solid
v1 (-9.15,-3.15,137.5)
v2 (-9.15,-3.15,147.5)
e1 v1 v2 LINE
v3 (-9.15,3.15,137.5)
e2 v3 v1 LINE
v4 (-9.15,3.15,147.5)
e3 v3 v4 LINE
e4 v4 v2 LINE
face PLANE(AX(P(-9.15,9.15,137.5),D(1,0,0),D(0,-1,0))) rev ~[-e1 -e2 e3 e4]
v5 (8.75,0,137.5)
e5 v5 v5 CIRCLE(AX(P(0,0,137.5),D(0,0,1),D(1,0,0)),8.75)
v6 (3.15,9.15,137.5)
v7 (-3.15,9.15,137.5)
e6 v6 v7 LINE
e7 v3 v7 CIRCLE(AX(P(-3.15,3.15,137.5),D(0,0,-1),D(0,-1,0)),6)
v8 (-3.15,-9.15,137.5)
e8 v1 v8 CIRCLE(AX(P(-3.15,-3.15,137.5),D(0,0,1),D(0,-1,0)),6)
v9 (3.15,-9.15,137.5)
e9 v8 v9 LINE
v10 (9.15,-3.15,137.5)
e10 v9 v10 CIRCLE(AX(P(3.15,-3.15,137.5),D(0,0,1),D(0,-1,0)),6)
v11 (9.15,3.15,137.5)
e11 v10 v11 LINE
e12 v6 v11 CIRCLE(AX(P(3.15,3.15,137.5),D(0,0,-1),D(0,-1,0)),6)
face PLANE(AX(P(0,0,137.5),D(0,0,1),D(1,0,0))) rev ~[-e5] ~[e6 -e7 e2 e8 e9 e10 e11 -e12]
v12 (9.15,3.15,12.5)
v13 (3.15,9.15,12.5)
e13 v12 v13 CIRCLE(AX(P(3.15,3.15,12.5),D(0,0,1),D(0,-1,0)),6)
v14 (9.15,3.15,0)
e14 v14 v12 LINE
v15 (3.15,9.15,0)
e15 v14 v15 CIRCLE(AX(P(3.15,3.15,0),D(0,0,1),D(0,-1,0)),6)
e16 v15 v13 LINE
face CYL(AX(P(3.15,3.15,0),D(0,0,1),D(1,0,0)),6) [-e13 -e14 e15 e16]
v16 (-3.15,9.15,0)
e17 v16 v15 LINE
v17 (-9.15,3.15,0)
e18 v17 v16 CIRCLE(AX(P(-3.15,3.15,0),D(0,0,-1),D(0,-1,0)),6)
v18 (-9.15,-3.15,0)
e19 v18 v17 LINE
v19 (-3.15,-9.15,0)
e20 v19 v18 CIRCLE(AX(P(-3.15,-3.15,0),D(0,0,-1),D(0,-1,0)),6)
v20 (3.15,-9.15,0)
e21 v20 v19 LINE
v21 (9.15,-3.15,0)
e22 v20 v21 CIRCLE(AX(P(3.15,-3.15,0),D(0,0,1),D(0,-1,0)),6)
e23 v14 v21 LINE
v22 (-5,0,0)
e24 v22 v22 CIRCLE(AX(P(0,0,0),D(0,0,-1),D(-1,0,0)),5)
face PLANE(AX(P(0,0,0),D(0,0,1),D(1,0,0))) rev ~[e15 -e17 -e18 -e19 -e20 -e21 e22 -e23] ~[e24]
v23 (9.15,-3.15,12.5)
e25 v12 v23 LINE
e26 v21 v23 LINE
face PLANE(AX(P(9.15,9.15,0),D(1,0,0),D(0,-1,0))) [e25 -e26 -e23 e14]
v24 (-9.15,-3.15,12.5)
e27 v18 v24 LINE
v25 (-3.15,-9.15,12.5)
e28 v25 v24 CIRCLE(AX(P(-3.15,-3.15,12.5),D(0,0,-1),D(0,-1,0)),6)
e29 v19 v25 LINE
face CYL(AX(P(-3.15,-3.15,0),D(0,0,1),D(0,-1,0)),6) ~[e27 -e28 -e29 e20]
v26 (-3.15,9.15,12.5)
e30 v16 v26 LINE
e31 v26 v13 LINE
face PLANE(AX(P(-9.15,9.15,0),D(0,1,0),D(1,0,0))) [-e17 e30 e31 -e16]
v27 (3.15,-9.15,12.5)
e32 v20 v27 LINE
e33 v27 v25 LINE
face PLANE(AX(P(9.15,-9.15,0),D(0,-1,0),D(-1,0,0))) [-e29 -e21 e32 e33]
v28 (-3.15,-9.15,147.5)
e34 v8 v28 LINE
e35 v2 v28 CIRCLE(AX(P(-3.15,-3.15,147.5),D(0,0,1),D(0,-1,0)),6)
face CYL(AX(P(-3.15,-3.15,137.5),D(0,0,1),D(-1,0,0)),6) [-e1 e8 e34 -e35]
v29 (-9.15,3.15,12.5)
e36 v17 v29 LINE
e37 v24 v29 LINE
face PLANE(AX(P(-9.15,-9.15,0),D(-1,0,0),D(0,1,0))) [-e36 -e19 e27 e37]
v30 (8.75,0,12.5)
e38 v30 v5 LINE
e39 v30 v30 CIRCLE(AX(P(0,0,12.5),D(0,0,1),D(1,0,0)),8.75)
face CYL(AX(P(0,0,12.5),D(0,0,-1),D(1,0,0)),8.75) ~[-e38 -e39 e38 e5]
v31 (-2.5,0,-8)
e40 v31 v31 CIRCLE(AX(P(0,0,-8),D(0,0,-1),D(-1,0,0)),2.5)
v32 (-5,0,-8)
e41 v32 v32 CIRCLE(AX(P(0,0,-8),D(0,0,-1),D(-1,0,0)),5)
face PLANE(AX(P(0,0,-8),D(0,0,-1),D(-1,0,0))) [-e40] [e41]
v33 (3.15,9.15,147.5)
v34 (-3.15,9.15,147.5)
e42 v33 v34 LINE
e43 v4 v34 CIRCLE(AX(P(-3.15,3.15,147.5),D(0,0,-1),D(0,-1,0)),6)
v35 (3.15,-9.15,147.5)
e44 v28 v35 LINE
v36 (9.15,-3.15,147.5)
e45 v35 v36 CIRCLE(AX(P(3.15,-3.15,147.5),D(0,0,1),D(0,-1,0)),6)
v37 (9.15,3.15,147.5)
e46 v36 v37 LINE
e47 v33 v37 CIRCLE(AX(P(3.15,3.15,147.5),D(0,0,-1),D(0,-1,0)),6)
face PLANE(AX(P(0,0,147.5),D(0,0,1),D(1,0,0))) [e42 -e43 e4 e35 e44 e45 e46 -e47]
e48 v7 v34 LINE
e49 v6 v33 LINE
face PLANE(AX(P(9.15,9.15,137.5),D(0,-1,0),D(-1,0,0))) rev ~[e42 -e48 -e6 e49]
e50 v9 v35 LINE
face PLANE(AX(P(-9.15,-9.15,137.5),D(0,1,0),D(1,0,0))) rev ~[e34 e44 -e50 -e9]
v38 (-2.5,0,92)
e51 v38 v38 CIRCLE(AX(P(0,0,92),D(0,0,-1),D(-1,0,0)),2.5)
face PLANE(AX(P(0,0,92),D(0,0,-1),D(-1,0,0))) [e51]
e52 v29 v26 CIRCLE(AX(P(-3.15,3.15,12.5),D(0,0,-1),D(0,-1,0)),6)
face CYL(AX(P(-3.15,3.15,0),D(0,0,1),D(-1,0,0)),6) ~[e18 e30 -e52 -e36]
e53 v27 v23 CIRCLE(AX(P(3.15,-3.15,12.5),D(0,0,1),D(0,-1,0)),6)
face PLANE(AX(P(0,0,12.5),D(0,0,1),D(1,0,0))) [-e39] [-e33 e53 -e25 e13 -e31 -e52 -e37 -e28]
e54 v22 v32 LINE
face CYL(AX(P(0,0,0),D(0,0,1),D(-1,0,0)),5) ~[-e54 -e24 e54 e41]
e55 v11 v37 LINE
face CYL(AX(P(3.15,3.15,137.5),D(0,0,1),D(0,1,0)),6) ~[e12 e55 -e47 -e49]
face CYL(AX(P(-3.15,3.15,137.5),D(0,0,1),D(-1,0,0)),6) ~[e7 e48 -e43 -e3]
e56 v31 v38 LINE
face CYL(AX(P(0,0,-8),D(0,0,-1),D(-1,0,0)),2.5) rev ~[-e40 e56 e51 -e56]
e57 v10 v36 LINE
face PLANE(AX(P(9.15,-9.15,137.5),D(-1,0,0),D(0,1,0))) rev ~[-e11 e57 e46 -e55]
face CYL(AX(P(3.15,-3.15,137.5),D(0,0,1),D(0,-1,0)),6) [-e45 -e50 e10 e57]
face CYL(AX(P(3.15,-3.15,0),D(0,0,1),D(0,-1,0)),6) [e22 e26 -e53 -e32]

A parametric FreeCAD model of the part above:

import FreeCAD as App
import Part
import Sketcher

V = App.Vector
Q = App.Units.Quantity


def edges_at(feature, points):
    """Names of the edges that pass closest to the given points."""
    edges = feature.Shape.Edges
    near = lambda p: min(range(len(edges)), key=lambda i: edges[i].distToShape(Part.Vertex(*p))[0])
    return sorted({f"Edge{near(p) + 1}" for p in points})

doc = App.newDocument("Part")
body = doc.addObject("PartDesign::Body", "Body")

# Sketch on XY plane
sketch1 = body.newObject("Sketcher::SketchObject", "Sketch")
sketch1.AttachmentSupport = (doc.getObject("XY_Plane"), [""])
sketch1.MapMode = "FlatFace"
sketch1.addGeometry([
    Part.LineSegment(V(-9, -9, 0), V(9, -9, 0)),
    Part.LineSegment(V(9, -9, 0), V(9, 9, 0)),
    Part.LineSegment(V(9, 9, 0), V(-9, 9, 0)),
    Part.LineSegment(V(-9, 9, 0), V(-9, -9, 0)),
], False)
sketch1.addConstraint([
    Sketcher.Constraint("Coincident", 0, 2, 1, 1),
    Sketcher.Constraint("Coincident", 1, 2, 2, 1),
    Sketcher.Constraint("Coincident", 2, 2, 3, 1),
    Sketcher.Constraint("Coincident", 3, 2, 0, 1),
    Sketcher.Constraint("Horizontal", 0),
    Sketcher.Constraint("Vertical", 1),
    Sketcher.Constraint("Horizontal", 2),
    Sketcher.Constraint("Vertical", 3),
    Sketcher.Constraint("Symmetric", 0, 2, 2, 2, -1, 1),
    Sketcher.Constraint("Equal", 2, 1),
    Sketcher.Constraint("DistanceX", 0, 1, 0, 2, Q("18.3 mm")),
])
pad1 = body.newObject("PartDesign::Pad", "Pad")
pad1.Profile = sketch1
pad1.Length = 12.5

# Sketch on XY plane
sketch2 = body.newObject("Sketcher::SketchObject", "Sketch001")
sketch2.AttachmentSupport = (doc.getObject("XY_Plane"), [""])
sketch2.MapMode = "FlatFace"
sketch2.AttachmentOffset = App.Placement(V(0, 0, 12.5), App.Rotation())
sketch2.addGeometry(Part.Circle(V(0, 0, 0), V(0, 0, 1), 9), False)
sketch2.addConstraint([
    Sketcher.Constraint("Coincident", 0, 3, -1, 1),
    Sketcher.Constraint("Diameter", 0, Q("17.5 mm")),
])
pad2 = body.newObject("PartDesign::Pad", "Pad001")
pad2.Profile = sketch2
pad2.Length = 125

# Sketch on XY plane
sketch3 = body.newObject("Sketcher::SketchObject", "Sketch002")
sketch3.AttachmentSupport = (doc.getObject("XY_Plane"), [""])
sketch3.MapMode = "FlatFace"
sketch3.AttachmentOffset = App.Placement(V(0, 0, 137.5), App.Rotation())
sketch3.addGeometry([
    Part.LineSegment(V(-9, 9, 0), V(-9, -9, 0)),
    Part.LineSegment(V(-9, -9, 0), V(9, -9, 0)),
    Part.LineSegment(V(9, -9, 0), V(9, 9, 0)),
    Part.LineSegment(V(9, 9, 0), V(-9, 9, 0)),
], False)
sketch3.addConstraint([
    Sketcher.Constraint("Coincident", 0, 2, 1, 1),
    Sketcher.Constraint("Coincident", 1, 2, 2, 1),
    Sketcher.Constraint("Coincident", 2, 2, 3, 1),
    Sketcher.Constraint("Coincident", 3, 2, 0, 1),
    Sketcher.Constraint("Vertical", 0),
    Sketcher.Constraint("Horizontal", 1),
    Sketcher.Constraint("Vertical", 2),
    Sketcher.Constraint("Horizontal", 3),
    Sketcher.Constraint("Symmetric", 0, 2, 2, 2, -1, 1),
    Sketcher.Constraint("Equal", 3, 0),
    Sketcher.Constraint("DistanceX", 1, 1, 1, 2, Q("18.3 mm")),
])
pad3 = body.newObject("PartDesign::Pad", "Pad002")
pad3.Profile = sketch3
pad3.Length = 10
doc.recompute()

fillet = body.newObject("PartDesign::Fillet", "Fillet")
fillet.Base = (pad3, edges_at(pad3, [
    (9.15, 9.15, 142.5),
    (9.15, -9.15, 142.5),
    (-9.15, 9.15, 142.5),
    (-9.15, -9.15, 142.5),
]))
fillet.Radius = 6
doc.recompute()

fillet2 = body.newObject("PartDesign::Fillet", "Fillet001")
fillet2.Base = (fillet, edges_at(fillet, [
    (9.15, 9.15, 6.25),
    (9.15, -9.15, 6.25),
    (-9.15, 9.15, 6.25),
    (-9.15, -9.15, 6.25),
]))
fillet2.Radius = 6

# Sketch on XY plane
sketch4 = body.newObject("Sketcher::SketchObject", "Sketch003")
sketch4.AttachmentSupport = (doc.getObject("XY_Plane"), [""])
sketch4.MapMode = "FlatFace"
sketch4.addGeometry(Part.Circle(V(0, 0, 0), V(0, 0, 1), 5), False)
sketch4.addConstraint([
    Sketcher.Constraint("Coincident", 0, 3, -1, 1),
    Sketcher.Constraint("Diameter", 0, Q("10 mm")),
])
pad4 = body.newObject("PartDesign::Pad", "Pad003")
pad4.Profile = sketch4
pad4.Length = 8
pad4.Reversed = True

# Sketch on XY plane
sketch5 = body.newObject("Sketcher::SketchObject", "Sketch004")
sketch5.AttachmentSupport = (doc.getObject("XY_Plane"), [""])
sketch5.MapMode = "FlatFace"
sketch5.AttachmentOffset = App.Placement(V(0, 0, -8), App.Rotation())
sketch5.addGeometry(Part.Circle(V(0, 0, 0), V(0, 0, 1), 2.5), False)
sketch5.addConstraint([
    Sketcher.Constraint("Coincident", 0, 3, -1, 1),
    Sketcher.Constraint("Diameter", 0, Q("5 mm")),
])
pocket1 = body.newObject("PartDesign::Pocket", "Pocket")
pocket1.Profile = sketch5
pocket1.Length = 100
pocket1.Reversed = True

doc.recompute()
